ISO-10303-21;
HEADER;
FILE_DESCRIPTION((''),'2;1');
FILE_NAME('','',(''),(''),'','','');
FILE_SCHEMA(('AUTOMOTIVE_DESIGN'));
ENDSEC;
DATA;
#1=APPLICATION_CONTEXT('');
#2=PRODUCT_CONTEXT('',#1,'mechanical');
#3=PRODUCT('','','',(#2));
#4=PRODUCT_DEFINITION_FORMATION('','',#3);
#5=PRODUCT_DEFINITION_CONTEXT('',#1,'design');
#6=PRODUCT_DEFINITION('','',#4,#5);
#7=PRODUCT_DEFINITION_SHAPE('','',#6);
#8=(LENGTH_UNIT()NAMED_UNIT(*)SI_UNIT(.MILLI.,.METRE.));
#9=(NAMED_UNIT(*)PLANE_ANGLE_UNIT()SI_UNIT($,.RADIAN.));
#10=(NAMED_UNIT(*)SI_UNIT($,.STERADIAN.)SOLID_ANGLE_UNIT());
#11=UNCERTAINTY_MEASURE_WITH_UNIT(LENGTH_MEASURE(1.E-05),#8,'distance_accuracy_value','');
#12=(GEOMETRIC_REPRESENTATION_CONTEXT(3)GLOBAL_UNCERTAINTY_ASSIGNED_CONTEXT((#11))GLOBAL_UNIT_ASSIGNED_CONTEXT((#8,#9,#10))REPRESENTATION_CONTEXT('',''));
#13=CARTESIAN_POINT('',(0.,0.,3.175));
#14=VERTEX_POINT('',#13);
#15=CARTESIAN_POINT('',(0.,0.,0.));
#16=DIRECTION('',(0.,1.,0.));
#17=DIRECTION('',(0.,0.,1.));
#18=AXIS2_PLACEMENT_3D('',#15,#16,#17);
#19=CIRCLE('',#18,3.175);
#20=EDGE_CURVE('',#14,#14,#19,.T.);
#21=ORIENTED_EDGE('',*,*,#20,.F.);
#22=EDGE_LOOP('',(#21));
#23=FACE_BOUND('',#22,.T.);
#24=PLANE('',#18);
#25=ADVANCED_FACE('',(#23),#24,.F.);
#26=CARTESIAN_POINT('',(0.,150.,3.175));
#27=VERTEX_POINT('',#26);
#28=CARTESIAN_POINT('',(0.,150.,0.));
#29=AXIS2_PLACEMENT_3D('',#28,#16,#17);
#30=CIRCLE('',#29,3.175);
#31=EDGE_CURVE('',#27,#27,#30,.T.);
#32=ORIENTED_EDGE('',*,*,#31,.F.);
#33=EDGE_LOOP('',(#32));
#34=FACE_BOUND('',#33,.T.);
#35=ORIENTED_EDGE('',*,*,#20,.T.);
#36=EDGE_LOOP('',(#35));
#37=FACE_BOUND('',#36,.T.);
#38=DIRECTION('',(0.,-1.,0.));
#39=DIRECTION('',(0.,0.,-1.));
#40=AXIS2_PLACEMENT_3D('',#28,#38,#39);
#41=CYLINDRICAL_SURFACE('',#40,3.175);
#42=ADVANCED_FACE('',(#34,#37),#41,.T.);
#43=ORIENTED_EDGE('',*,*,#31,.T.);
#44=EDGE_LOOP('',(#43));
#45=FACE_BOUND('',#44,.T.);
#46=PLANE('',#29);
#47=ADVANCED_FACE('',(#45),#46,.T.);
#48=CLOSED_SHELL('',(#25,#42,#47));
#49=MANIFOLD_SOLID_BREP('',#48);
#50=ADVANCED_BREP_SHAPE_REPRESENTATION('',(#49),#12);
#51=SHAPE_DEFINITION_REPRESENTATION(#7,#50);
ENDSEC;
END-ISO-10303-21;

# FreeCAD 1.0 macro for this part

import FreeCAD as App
import Part
import Sketcher
Q = App.Units.Quantity

doc = App.newDocument("Part")
body = doc.addObject("PartDesign::Body", "Body")

# Sketch on XZ plane
sketch1 = body.newObject("Sketcher::SketchObject", "Sketch")
sketch1.AttachmentSupport = (doc.getObject("XZ_Plane"), [""])
sketch1.MapMode = "FlatFace"
sketch1.addGeometry(Part.Circle(App.Vector(0, 0, 0), App.Vector(0, 0, 1), 3.2), False)
sketch1.addConstraint(Sketcher.Constraint("Coincident", 0, 3, -1, 1))
sketch1.addConstraint(Sketcher.Constraint("Diameter", 0, Q("6.35 mm")))
pad1 = body.newObject("PartDesign::Pad", "Pad")
pad1.Profile = sketch1
pad1.Length = 150
pad1.Reversed = True

doc.recompute()
